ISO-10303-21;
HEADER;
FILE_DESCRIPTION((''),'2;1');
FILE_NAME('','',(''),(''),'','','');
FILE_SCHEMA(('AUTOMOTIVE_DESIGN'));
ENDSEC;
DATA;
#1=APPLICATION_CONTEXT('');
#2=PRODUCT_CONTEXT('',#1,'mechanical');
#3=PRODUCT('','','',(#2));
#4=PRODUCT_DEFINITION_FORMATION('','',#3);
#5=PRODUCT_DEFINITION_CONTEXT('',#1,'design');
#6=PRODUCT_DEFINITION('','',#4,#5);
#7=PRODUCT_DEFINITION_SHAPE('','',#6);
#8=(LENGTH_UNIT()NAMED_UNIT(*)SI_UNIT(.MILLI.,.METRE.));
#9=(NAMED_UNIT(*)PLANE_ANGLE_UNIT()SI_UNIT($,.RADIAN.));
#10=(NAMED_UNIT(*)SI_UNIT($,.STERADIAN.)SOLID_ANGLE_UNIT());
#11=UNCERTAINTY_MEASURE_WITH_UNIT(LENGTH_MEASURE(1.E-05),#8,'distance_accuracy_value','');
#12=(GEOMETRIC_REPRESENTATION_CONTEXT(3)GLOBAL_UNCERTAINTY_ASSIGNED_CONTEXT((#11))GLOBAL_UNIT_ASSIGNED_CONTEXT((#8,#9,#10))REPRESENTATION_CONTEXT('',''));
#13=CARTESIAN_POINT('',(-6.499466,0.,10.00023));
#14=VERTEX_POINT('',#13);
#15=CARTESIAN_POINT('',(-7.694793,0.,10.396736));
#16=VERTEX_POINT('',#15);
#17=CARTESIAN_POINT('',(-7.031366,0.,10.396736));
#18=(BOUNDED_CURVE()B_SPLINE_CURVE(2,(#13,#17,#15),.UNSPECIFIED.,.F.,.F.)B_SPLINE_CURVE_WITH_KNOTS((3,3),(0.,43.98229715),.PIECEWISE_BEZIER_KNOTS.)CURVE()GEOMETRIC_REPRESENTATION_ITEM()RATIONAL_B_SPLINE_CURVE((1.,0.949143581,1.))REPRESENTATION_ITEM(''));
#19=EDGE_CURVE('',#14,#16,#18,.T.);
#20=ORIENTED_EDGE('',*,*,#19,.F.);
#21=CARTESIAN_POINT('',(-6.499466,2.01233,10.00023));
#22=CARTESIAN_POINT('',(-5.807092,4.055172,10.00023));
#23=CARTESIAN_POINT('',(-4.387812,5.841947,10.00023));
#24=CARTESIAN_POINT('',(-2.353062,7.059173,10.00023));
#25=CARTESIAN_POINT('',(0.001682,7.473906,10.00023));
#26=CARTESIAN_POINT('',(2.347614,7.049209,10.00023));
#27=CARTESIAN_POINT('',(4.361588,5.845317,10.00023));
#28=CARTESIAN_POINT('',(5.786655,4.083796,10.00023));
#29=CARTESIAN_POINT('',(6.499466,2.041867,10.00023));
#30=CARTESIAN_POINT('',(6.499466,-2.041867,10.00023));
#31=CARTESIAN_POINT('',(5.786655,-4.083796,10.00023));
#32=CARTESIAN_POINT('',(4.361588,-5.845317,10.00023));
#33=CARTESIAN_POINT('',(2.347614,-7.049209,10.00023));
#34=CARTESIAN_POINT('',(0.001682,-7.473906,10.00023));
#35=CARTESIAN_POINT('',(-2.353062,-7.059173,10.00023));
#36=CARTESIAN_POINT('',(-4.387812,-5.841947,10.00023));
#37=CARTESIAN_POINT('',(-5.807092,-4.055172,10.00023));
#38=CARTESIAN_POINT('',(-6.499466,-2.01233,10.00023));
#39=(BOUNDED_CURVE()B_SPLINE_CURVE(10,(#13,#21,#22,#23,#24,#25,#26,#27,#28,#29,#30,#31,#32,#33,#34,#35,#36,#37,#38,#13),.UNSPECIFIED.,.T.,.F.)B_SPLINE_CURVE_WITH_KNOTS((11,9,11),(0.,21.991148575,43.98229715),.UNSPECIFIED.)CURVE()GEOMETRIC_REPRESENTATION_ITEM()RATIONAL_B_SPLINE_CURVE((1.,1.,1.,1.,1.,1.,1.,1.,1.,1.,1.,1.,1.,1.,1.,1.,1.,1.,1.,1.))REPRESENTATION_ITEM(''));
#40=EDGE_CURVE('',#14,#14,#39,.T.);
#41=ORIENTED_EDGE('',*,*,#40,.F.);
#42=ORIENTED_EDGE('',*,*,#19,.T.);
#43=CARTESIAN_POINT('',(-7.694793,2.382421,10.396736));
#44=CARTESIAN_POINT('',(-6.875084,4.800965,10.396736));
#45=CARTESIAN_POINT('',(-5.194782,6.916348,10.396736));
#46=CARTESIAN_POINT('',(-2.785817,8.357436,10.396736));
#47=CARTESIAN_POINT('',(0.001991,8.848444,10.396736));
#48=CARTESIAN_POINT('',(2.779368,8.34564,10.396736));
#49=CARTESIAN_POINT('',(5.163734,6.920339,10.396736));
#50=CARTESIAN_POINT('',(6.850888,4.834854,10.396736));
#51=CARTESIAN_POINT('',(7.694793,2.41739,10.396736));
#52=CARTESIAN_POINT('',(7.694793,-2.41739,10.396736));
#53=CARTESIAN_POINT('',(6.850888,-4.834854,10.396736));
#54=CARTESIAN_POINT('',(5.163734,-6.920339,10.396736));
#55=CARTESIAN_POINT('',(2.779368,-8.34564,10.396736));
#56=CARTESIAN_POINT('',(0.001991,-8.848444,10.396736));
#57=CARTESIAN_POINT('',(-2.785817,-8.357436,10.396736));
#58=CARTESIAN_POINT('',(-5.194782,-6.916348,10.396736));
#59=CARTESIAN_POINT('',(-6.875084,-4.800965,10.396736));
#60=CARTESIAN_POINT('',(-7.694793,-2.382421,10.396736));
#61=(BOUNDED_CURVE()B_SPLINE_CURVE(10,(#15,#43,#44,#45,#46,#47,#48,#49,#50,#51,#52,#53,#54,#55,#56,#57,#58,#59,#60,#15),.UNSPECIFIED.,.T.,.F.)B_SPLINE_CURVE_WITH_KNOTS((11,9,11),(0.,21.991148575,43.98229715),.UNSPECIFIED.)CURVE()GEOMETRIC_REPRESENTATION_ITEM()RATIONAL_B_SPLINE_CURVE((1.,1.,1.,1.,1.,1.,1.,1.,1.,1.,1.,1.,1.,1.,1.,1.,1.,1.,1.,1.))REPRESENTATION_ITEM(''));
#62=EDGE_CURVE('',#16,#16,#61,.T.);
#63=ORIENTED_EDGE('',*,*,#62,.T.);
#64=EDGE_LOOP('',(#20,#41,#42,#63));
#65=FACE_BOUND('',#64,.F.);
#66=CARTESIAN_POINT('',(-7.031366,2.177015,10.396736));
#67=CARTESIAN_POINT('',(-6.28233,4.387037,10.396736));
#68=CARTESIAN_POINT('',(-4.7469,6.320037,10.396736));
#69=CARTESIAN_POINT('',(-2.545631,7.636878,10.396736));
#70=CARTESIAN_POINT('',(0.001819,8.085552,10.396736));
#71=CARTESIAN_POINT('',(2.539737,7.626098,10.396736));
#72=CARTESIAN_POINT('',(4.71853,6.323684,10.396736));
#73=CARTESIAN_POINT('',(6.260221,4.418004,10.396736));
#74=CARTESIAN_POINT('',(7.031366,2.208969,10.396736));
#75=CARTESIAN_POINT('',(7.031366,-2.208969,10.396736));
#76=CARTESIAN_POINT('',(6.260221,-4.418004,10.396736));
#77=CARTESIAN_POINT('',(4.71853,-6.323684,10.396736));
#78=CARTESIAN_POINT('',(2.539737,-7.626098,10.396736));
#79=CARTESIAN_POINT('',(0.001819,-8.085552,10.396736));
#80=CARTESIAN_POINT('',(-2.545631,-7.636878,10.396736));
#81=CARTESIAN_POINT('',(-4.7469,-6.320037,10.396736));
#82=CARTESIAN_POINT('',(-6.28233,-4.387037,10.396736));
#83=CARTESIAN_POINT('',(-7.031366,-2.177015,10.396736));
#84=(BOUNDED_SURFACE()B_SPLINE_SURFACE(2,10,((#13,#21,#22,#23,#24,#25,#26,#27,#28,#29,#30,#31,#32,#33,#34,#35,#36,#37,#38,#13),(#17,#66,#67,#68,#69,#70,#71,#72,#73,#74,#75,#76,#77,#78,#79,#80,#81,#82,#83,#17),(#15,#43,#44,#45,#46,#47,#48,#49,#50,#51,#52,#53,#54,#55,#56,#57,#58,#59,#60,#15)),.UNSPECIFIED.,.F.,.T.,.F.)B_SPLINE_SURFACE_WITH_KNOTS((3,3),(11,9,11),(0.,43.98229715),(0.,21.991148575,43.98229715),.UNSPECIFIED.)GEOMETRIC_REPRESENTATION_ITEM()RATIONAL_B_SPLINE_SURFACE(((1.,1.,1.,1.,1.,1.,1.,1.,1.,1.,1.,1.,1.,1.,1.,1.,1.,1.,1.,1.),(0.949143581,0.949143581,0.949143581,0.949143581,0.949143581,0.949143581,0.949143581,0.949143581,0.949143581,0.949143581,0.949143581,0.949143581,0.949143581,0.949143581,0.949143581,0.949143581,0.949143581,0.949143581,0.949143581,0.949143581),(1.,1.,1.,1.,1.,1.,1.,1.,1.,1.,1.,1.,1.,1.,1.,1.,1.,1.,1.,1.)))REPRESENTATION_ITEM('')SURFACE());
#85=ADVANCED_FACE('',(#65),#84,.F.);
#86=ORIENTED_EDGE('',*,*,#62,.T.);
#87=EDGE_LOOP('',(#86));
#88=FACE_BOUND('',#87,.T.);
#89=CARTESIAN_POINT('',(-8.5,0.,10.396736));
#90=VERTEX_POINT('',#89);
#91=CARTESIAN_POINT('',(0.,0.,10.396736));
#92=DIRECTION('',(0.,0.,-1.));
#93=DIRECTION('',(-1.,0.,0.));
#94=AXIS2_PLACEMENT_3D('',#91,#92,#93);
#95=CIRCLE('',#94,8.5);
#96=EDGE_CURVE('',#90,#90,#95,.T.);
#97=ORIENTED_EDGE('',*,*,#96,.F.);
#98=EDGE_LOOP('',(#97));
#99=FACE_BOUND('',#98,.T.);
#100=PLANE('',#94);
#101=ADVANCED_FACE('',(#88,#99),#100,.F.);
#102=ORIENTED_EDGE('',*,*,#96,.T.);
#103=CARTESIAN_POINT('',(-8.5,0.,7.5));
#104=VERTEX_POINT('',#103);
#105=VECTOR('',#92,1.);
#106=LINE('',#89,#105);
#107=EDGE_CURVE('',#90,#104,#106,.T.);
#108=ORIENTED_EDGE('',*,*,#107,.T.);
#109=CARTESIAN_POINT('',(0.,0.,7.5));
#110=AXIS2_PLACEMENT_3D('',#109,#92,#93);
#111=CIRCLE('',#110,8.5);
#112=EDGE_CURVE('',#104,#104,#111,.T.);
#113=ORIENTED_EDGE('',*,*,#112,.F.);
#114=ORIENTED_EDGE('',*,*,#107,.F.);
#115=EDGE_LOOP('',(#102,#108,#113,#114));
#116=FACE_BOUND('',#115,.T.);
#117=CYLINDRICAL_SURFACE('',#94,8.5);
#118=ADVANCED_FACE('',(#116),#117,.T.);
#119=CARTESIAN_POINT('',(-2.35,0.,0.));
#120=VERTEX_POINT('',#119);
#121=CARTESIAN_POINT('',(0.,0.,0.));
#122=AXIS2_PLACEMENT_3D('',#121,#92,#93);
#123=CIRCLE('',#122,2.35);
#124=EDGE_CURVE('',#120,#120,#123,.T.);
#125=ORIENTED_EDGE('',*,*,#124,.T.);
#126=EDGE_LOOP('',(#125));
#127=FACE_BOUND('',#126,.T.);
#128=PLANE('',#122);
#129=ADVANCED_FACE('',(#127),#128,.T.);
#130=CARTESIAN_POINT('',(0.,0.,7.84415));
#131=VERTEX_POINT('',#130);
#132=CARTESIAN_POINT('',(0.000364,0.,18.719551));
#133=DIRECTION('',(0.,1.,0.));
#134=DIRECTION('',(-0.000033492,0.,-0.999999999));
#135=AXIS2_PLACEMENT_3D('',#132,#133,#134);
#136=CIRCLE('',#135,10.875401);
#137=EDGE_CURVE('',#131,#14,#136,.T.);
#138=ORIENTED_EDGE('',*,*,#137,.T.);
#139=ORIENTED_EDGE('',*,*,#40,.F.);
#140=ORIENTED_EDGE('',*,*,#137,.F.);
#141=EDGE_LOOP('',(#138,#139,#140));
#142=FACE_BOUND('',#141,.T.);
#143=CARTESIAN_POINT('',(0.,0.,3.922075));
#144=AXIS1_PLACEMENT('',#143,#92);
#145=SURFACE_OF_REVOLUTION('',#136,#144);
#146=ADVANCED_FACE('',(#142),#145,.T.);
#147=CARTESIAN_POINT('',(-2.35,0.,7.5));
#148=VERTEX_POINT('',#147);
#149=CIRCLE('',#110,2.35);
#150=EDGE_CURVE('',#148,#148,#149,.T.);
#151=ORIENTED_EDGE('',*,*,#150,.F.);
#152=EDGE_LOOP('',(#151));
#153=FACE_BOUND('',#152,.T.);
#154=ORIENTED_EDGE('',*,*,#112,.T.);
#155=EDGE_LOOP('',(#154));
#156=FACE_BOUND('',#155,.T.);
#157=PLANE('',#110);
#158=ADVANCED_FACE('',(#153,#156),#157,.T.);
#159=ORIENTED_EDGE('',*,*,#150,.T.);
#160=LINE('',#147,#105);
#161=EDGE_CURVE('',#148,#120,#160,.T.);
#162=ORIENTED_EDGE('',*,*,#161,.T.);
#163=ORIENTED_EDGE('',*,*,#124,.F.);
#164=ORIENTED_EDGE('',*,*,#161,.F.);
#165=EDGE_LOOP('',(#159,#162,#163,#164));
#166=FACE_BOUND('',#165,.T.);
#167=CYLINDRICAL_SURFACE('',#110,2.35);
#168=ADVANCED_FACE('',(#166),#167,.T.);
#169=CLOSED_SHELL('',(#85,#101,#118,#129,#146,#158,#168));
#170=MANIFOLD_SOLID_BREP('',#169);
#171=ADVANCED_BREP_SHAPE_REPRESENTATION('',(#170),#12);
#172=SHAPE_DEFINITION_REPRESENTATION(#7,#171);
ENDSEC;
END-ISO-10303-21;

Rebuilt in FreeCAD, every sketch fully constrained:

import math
import FreeCAD as App
import Part
import Sketcher
from FreeCAD import Vector
Q = App.Units.Quantity


def edges_at(feature, points):
    """Names of the edges that pass closest to the given points."""
    edges = feature.Shape.Edges
    near = lambda p: min(range(len(edges)), key=lambda i: edges[i].distToShape(Part.Vertex(*p))[0])
    return sorted({f"Edge{near(p) + 1}" for p in points})

doc = App.newDocument("Part")
body = doc.addObject("PartDesign::Body", "Body")

# Sketch on XZ plane
sketch1 = body.newObject("Sketcher::SketchObject", "Sketch")
sketch1.AttachmentSupport = (doc.getObject("XZ_Plane"), [""])
sketch1.MapMode = "FlatFace"
sketch1.addGeometry([
    Part.LineSegment(Vector(-2.4, 0, 0), Vector(0, 0, 0)),  # 0
    Part.LineSegment(Vector(0, 0, 0), Vector(0, 7.8, 0)),  # 1
    Part.ArcOfCircle(Part.Circle(Vector(0, 18.7, 0), Vector(0, 0, 1), 10.9), math.radians(-130), math.radians(-90)),  # 2
    Part.LineSegment(Vector(-7, 10.4, 0), Vector(-8.5, 10.4, 0)),  # 3
    Part.LineSegment(Vector(-8.5, 10.4, 0), Vector(-8.5, 7.5, 0)),  # 4
    Part.LineSegment(Vector(-8.5, 7.5, 0), Vector(-2.4, 7.5, 0)),  # 5
    Part.LineSegment(Vector(-2.4, 7.5, 0), Vector(-2.4, 0, 0)),  # 6
], False)
sketch1.addConstraint([
    Sketcher.Constraint("Coincident", 0, 2, 1, 1),
    Sketcher.Constraint("Coincident", 1, 2, 2, 2),
    Sketcher.Constraint("Coincident", 2, 1, 3, 1),
    Sketcher.Constraint("Coincident", 3, 2, 4, 1),
    Sketcher.Constraint("Coincident", 4, 2, 5, 1),
    Sketcher.Constraint("Coincident", 5, 2, 6, 1),
    Sketcher.Constraint("Coincident", 6, 2, 0, 1),
    Sketcher.Constraint("Horizontal", 0),
    Sketcher.Constraint("Vertical", 1),
    Sketcher.Constraint("Horizontal", 3),
    Sketcher.Constraint("Vertical", 4),
    Sketcher.Constraint("Horizontal", 5),
    Sketcher.Constraint("Vertical", 6),
    Sketcher.Constraint("Coincident", 0, 2, -1, 1),
    Sketcher.Constraint("DistanceX", 3, 2, 3, 1, Q("1.5 mm")),
    Sketcher.Constraint("DistanceY", 6, 2, 6, 1, Q("7.5 mm")),
    Sketcher.Constraint("DistanceX", 2, 1, -1, 1, Q("7 mm")),
    Sketcher.Constraint("DistanceX", 0, 1, 0, 2, Q("2.35 mm")),
    Sketcher.Constraint("Radius", 2, Q("10.875401 mm")),
    Sketcher.Constraint("DistanceY", 1, 1, 1, 2, Q("7.84415 mm")),
    Sketcher.Constraint("DistanceY", 4, 2, 4, 1, Q("2.896736 mm")),
])
revolution = body.newObject("PartDesign::Revolution", "Revolution")
revolution.Profile = sketch1
revolution.ReferenceAxis = (sketch1, ["V_Axis"])
revolution.Angle = 360
doc.recompute()

fillet = body.newObject("PartDesign::Fillet", "Fillet")
fillet.Base = (revolution, edges_at(revolution, [(7, 0, 10.397)]))
fillet.Radius = 2

doc.recompute()
